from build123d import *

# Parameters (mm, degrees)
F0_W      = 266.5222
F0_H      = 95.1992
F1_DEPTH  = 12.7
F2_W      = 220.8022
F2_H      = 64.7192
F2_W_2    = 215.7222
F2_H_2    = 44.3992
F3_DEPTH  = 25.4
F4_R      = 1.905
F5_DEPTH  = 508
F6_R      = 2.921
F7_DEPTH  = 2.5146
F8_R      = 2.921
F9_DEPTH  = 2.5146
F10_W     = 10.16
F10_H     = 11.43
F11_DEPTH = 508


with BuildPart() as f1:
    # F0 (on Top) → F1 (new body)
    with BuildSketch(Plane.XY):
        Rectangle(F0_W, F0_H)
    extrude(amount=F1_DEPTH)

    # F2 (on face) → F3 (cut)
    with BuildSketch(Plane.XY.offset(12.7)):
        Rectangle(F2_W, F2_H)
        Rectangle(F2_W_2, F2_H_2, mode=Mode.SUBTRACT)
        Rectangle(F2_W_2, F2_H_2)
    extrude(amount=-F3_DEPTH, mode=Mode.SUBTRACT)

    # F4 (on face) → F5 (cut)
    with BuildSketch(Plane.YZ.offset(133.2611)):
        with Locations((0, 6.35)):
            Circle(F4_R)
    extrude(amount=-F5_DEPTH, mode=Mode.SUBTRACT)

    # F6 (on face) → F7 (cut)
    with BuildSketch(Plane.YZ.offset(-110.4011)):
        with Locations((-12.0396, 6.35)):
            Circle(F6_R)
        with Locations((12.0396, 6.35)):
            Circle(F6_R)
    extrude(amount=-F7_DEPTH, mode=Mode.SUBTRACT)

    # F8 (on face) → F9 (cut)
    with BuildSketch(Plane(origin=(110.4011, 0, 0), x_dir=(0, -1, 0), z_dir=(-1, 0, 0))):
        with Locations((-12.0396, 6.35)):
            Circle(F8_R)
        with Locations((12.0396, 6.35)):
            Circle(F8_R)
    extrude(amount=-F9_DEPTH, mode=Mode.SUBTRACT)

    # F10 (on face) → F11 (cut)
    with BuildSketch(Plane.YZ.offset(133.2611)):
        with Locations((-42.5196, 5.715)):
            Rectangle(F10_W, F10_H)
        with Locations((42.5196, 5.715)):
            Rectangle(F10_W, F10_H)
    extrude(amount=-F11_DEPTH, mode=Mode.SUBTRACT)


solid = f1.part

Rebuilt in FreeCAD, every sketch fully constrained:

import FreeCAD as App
import Part
import Sketcher

V = App.Vector
Q = App.Units.Quantity

doc = App.newDocument("Part")
body = doc.addObject("PartDesign::Body", "Body")

sketch1 = body.newObject("Sketcher::SketchObject", "Sketch")
sketch1.AttachmentSupport = (doc.getObject("XY_Plane"), [""])
sketch1.MapMode = "FlatFace"
sketch1.addGeometry([
    Part.LineSegment(V(-133, 48, 0), V(-133, -48, 0)),
    Part.LineSegment(V(-133, -48, 0), V(133, -48, 0)),
    Part.LineSegment(V(133, -48, 0), V(133, 48, 0)),
    Part.LineSegment(V(133, 48, 0), V(-133, 48, 0)),
], False)
sketch1.addConstraint([
    Sketcher.Constraint("Coincident", 0, 2, 1, 1),
    Sketcher.Constraint("Coincident", 1, 2, 2, 1),
    Sketcher.Constraint("Coincident", 2, 2, 3, 1),
    Sketcher.Constraint("Coincident", 3, 2, 0, 1),
    Sketcher.Constraint("Vertical", 0),
    Sketcher.Constraint("Horizontal", 1),
    Sketcher.Constraint("Vertical", 2),
    Sketcher.Constraint("Horizontal", 3),
    Sketcher.Constraint("Symmetric", 0, 2, 2, 2, -1, 1),
    Sketcher.Constraint("DistanceX", 1, 1, 1, 2, Q("10.493 in")),
    Sketcher.Constraint("DistanceY", 0, 2, 0, 1, Q("3.748 in")),
])
pad1 = body.newObject("PartDesign::Pad", "Pad")
pad1.Profile = sketch1
pad1.Length = Q("0.5 in")

sketch2 = body.newObject("Sketcher::SketchObject", "Sketch001")
sketch2.AttachmentSupport = (doc.getObject("XY_Plane"), [""])
sketch2.MapMode = "FlatFace"
sketch2.AttachmentOffset = App.Placement(V(0, 0, 0.5 * 25.4), App.Rotation())
sketch2.addGeometry([
    Part.LineSegment(V(-110, 32, 0), V(-110, -32, 0)),
    Part.LineSegment(V(-110, -32, 0), V(110, -32, 0)),
    Part.LineSegment(V(110, -32, 0), V(110, 32, 0)),
    Part.LineSegment(V(110, 32, 0), V(-110, 32, 0)),
], False)
sketch2.addConstraint([
    Sketcher.Constraint("Coincident", 0, 2, 1, 1),
    Sketcher.Constraint("Coincident", 1, 2, 2, 1),
    Sketcher.Constraint("Coincident", 2, 2, 3, 1),
    Sketcher.Constraint("Coincident", 3, 2, 0, 1),
    Sketcher.Constraint("Vertical", 0),
    Sketcher.Constraint("Horizontal", 1),
    Sketcher.Constraint("Vertical", 2),
    Sketcher.Constraint("Horizontal", 3),
    Sketcher.Constraint("Symmetric", 0, 2, 2, 2, -1, 1),
    Sketcher.Constraint("DistanceX", 1, 1, 1, 2, Q("8.693 in")),
    Sketcher.Constraint("DistanceY", 0, 2, 0, 1, Q("2.548 in")),
])
pocket1 = body.newObject("PartDesign::Pocket", "Pocket")
pocket1.Profile = sketch2
pocket1.Length = Q("1 in")

sketch3 = body.newObject("Sketcher::SketchObject", "Sketch002")
sketch3.AttachmentSupport = (doc.getObject("YZ_Plane"), [""])
sketch3.MapMode = "FlatFace"
sketch3.AttachmentOffset = App.Placement(V(0, 0, 5.2465 * 25.4), App.Rotation())
sketch3.addGeometry(Part.Circle(V(0, 6.3, 0), V(0, 0, 1), 1.9), False)
sketch3.addConstraint([
    Sketcher.Constraint("PointOnObject", 0, 3, -2),
    Sketcher.Constraint("Diameter", 0, Q("0.15 in")),
    Sketcher.Constraint("DistanceY", -1, 1, 0, 3, Q("0.25 in")),
])
pocket2 = body.newObject("PartDesign::Pocket", "Pocket001")
pocket2.Profile = sketch3
pocket2.Length = Q("20 in")

sketch4 = body.newObject("Sketcher::SketchObject", "Sketch003")
sketch4.AttachmentSupport = (doc.getObject("YZ_Plane"), [""])
sketch4.MapMode = "FlatFace"
sketch4.AttachmentOffset = App.Placement(V(0, 0, -4.3465 * 25.4), App.Rotation())
sketch4.addGeometry([
    Part.Circle(V(-12, 6.3, 0), V(0, 0, 1), 2.9),
    Part.Circle(V(12, 6.3, 0), V(0, 0, 1), 2.9),
], False)
sketch4.addConstraint([
    Sketcher.Constraint("Equal", 0, 1),
    Sketcher.Constraint("Symmetric", 0, 3, 1, 3, -2),
    Sketcher.Constraint("Diameter", 0, Q("0.23 in")),
    Sketcher.Constraint("DistanceY", -1, 1, 0, 3, Q("0.25 in")),
    Sketcher.Constraint("DistanceX", 0, 3, -1, 1, Q("0.474 in")),
])
pocket3 = body.newObject("PartDesign::Pocket", "Pocket002")
pocket3.Profile = sketch4
pocket3.Length = Q("0.099 in")

sketch5 = body.newObject("Sketcher::SketchObject", "Sketch004")
sketch5.AttachmentSupport = (doc.getObject("YZ_Plane"), [""])
sketch5.MapMode = "FlatFace"
sketch5.AttachmentOffset = App.Placement(V(0, 0, 4.3465 * 25.4), App.Rotation())
sketch5.addGeometry([
    Part.Circle(V(12, 6.3, 0), V(0, 0, 1), 2.9),
    Part.Circle(V(-12, 6.3, 0), V(0, 0, 1), 2.9),
], False)
sketch5.addConstraint([
    Sketcher.Constraint("Equal", 0, 1),
    Sketcher.Constraint("Symmetric", 0, 3, 1, 3, -2),
    Sketcher.Constraint("Diameter", 0, Q("0.23 in")),
    Sketcher.Constraint("DistanceY", -1, 1, 0, 3, Q("0.25 in")),
    Sketcher.Constraint("DistanceX", -1, 1, 0, 3, Q("0.474 in")),
])
pocket4 = body.newObject("PartDesign::Pocket", "Pocket003")
pocket4.Profile = sketch5
pocket4.Length = Q("0.099 in")
pocket4.Reversed = True

sketch6 = body.newObject("Sketcher::SketchObject", "Sketch005")
sketch6.AttachmentSupport = (doc.getObject("YZ_Plane"), [""])
sketch6.MapMode = "FlatFace"
sketch6.AttachmentOffset = App.Placement(V(0, 0, 5.2465 * 25.4), App.Rotation())
sketch6.addGeometry([
    Part.LineSegment(V(-48, 11, 0), V(-48, 0, 0)),
    Part.LineSegment(V(-48, 0, 0), V(-37, 0, 0)),
    Part.LineSegment(V(-37, 0, 0), V(-37, 11, 0)),
    Part.LineSegment(V(-37, 11, 0), V(-48, 11, 0)),
    Part.LineSegment(V(37, 11, 0), V(37, 0, 0)),
    Part.LineSegment(V(37, 0, 0), V(48, 0, 0)),
    Part.LineSegment(V(48, 0, 0), V(48, 11, 0)),
    Part.LineSegment(V(48, 11, 0), V(37, 11, 0)),
], False)
sketch6.addConstraint([
    Sketcher.Constraint("Coincident", 0, 2, 1, 1),
    Sketcher.Constraint("Coincident", 1, 2, 2, 1),
    Sketcher.Constraint("Coincident", 2, 2, 3, 1),
    Sketcher.Constraint("Coincident", 3, 2, 0, 1),
    Sketcher.Constraint("Coincident", 4, 2, 5, 1),
    Sketcher.Constraint("Coincident", 5, 2, 6, 1),
    Sketcher.Constraint("Coincident", 6, 2, 7, 1),
    Sketcher.Constraint("Coincident", 7, 2, 4, 1),
    Sketcher.Constraint("Vertical", 0),
    Sketcher.Constraint("Horizontal", 1),
    Sketcher.Constraint("Vertical", 2),
    Sketcher.Constraint("Horizontal", 3),
    Sketcher.Constraint("Vertical", 4),
    Sketcher.Constraint("Horizontal", 5),
    Sketcher.Constraint("Vertical", 6),
    Sketcher.Constraint("Horizontal", 7),
    Sketcher.Constraint("Symmetric", 1, 2, 4, 2, -1, 1),
    Sketcher.Constraint("Symmetric", 0, 2, 5, 2, -2),
    Sketcher.Constraint("Horizontal", 3, 2, 6, 2),
    Sketcher.Constraint("DistanceX", 1, 1, 1, 2, Q("0.4 in")),
    Sketcher.Constraint("DistanceY", 0, 2, 0, 1, Q("0.45 in")),
    Sketcher.Constraint("DistanceX", 0, 2, -1, 1, Q("1.874 in")),
])
pocket5 = body.newObject("PartDesign::Pocket", "Pocket004")
pocket5.Profile = sketch6
pocket5.Length = Q("20 in")

doc.recompute()
